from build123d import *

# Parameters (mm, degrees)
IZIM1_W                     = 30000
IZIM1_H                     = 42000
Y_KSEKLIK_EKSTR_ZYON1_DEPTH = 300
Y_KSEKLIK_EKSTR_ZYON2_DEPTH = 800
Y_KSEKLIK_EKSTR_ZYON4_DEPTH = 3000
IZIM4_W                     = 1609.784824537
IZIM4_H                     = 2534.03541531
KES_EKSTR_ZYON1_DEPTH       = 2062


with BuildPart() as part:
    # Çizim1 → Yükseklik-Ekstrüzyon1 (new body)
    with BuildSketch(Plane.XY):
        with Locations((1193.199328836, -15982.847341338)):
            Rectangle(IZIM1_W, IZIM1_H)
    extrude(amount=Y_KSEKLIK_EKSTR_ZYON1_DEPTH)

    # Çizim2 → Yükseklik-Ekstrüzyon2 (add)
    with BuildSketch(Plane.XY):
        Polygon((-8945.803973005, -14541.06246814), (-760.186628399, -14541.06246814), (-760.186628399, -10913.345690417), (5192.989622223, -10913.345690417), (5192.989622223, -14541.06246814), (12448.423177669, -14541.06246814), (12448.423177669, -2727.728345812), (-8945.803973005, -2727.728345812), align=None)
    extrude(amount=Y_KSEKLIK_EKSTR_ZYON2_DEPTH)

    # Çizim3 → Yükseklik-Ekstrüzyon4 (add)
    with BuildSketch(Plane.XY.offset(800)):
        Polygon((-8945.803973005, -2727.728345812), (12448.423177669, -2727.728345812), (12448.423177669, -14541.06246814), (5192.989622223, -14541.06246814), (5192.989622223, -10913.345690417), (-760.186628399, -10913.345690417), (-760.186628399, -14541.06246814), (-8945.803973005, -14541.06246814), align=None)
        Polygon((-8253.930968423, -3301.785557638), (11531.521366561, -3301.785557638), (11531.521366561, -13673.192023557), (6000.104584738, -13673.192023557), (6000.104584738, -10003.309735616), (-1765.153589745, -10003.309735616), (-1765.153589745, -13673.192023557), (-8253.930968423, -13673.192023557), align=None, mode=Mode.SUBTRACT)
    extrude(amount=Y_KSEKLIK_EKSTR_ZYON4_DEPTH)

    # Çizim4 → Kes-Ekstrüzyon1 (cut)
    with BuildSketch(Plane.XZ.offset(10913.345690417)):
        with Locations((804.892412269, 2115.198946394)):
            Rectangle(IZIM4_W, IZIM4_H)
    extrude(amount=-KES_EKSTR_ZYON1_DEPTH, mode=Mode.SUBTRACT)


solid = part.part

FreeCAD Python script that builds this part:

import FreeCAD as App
import Part
import Sketcher
Q = App.Units.Quantity

doc = App.newDocument("Part")
body = doc.addObject("PartDesign::Body", "Body")

sketch1 = body.newObject("Sketcher::SketchObject", "Sketch")
sketch1.AttachmentSupport = (doc.getObject("XY_Plane"), [""])
sketch1.MapMode = "FlatFace"
sketch1.addGeometry([
    Part.LineSegment(App.Vector(-13807, 5017, 0), App.Vector(-13807, -36983, 0)),
    Part.LineSegment(App.Vector(-13807, -36983, 0), App.Vector(16193, -36983, 0)),
    Part.LineSegment(App.Vector(16193, -36983, 0), App.Vector(16193, 5017, 0)),
    Part.LineSegment(App.Vector(16193, 5017, 0), App.Vector(-13807, 5017, 0)),
], False)
sketch1.addConstraint([
    Sketcher.Constraint("Coincident", 0, 2, 1, 1),
    Sketcher.Constraint("Coincident", 1, 2, 2, 1),
    Sketcher.Constraint("Coincident", 2, 2, 3, 1),
    Sketcher.Constraint("Coincident", 3, 2, 0, 1),
    Sketcher.Constraint("Vertical", 0),
    Sketcher.Constraint("Horizontal", 1),
    Sketcher.Constraint("Vertical", 2),
    Sketcher.Constraint("Horizontal", 3),
    Sketcher.Constraint("DistanceX", 1, 1, 1, 2, Q("30000 mm")),
    Sketcher.Constraint("DistanceY", 0, 2, 0, 1, Q("42000 mm")),
    Sketcher.Constraint("DistanceX", 0, 2, -1, 1, Q("13806.800671 mm")),
    Sketcher.Constraint("DistanceY", 0, 2, -1, 1, Q("36982.847341 mm")),
])
pad1 = body.newObject("PartDesign::Pad", "Pad")
pad1.Profile = sketch1
pad1.Length = 300

sketch2 = body.newObject("Sketcher::SketchObject", "Sketch001")
sketch2.AttachmentSupport = (doc.getObject("XY_Plane"), [""])
sketch2.MapMode = "FlatFace"
sketch2.addGeometry([
    Part.LineSegment(App.Vector(-8946, -14541, 0), App.Vector(-760, -14541, 0)),
    Part.LineSegment(App.Vector(-760, -14541, 0), App.Vector(-760, -10913, 0)),
    Part.LineSegment(App.Vector(-760, -10913, 0), App.Vector(5193, -10913, 0)),
    Part.LineSegment(App.Vector(5193, -10913, 0), App.Vector(5193, -14541, 0)),
    Part.LineSegment(App.Vector(5193, -14541, 0), App.Vector(12448, -14541, 0)),
    Part.LineSegment(App.Vector(12448, -14541, 0), App.Vector(12448, -2728, 0)),
    Part.LineSegment(App.Vector(12448, -2728, 0), App.Vector(-8946, -2728, 0)),
    Part.LineSegment(App.Vector(-8946, -2728, 0), App.Vector(-8946, -14541, 0)),
], False)
sketch2.addConstraint([
    Sketcher.Constraint("Coincident", 0, 2, 1, 1),
    Sketcher.Constraint("Coincident", 1, 2, 2, 1),
    Sketcher.Constraint("Coincident", 2, 2, 3, 1),
    Sketcher.Constraint("Coincident", 3, 2, 4, 1),
    Sketcher.Constraint("Coincident", 4, 2, 5, 1),
    Sketcher.Constraint("Coincident", 5, 2, 6, 1),
    Sketcher.Constraint("Coincident", 6, 2, 7, 1),
    Sketcher.Constraint("Coincident", 7, 2, 0, 1),
    Sketcher.Constraint("Horizontal", 0),
    Sketcher.Constraint("Vertical", 1),
    Sketcher.Constraint("Horizontal", 2),
    Sketcher.Constraint("Vertical", 3),
    Sketcher.Constraint("Horizontal", 4),
    Sketcher.Constraint("Vertical", 5),
    Sketcher.Constraint("Horizontal", 6),
    Sketcher.Constraint("Vertical", 7),
    Sketcher.Constraint("Horizontal", 0, 2, 3, 2),
    Sketcher.Constraint("DistanceX", 2, 1, 2, 2, Q("5953.176251 mm")),
    Sketcher.Constraint("DistanceX", 6, 2, 6, 1, Q("21394.227151 mm")),
    Sketcher.Constraint("DistanceX", 0, 1, 0, 2, Q("8185.617345 mm")),
    Sketcher.Constraint("DistanceY", 1, 1, 1, 2, Q("3627.716778 mm")),
    Sketcher.Constraint("DistanceY", 5, 1, 5, 2, Q("11813.334122 mm")),
    Sketcher.Constraint("DistanceX", 0, 2, -1, 1, Q("760.186628 mm")),
    Sketcher.Constraint("DistanceY", 0, 2, -1, 1, Q("14541.062468 mm")),
])
pad2 = body.newObject("PartDesign::Pad", "Pad001")
pad2.Profile = sketch2
pad2.Length = 800

sketch3 = body.newObject("Sketcher::SketchObject", "Sketch002")
sketch3.AttachmentSupport = (doc.getObject("XY_Plane"), [""])
sketch3.MapMode = "FlatFace"
sketch3.AttachmentOffset = App.Placement(App.Vector(0, 0, 800), App.Rotation())
sketch3.addGeometry([
    Part.LineSegment(App.Vector(12448, -2728, 0), App.Vector(-8946, -2728, 0)),
    Part.LineSegment(App.Vector(-8946, -2728, 0), App.Vector(-8946, -14541, 0)),
    Part.LineSegment(App.Vector(-8946, -14541, 0), App.Vector(-760, -14541, 0)),
    Part.LineSegment(App.Vector(-760, -14541, 0), App.Vector(-760, -10913, 0)),
    Part.LineSegment(App.Vector(-760, -10913, 0), App.Vector(5193, -10913, 0)),
    Part.LineSegment(App.Vector(5193, -10913, 0), App.Vector(5193, -14541, 0)),
    Part.LineSegment(App.Vector(5193, -14541, 0), App.Vector(12448, -14541, 0)),
    Part.LineSegment(App.Vector(12448, -14541, 0), App.Vector(12448, -2728, 0)),
    Part.LineSegment(App.Vector(-8254, -3302, 0), App.Vector(11532, -3302, 0)),
    Part.LineSegment(App.Vector(11532, -3302, 0), App.Vector(11532, -13673, 0)),
    Part.LineSegment(App.Vector(11532, -13673, 0), App.Vector(6000, -13673, 0)),
    Part.LineSegment(App.Vector(6000, -13673, 0), App.Vector(6000, -10003, 0)),
    Part.LineSegment(App.Vector(6000, -10003, 0), App.Vector(-1765, -10003, 0)),
    Part.LineSegment(App.Vector(-1765, -10003, 0), App.Vector(-1765, -13673, 0)),
    Part.LineSegment(App.Vector(-1765, -13673, 0), App.Vector(-8254, -13673, 0)),
    Part.LineSegment(App.Vector(-8254, -13673, 0), App.Vector(-8254, -3302, 0)),
], False)
sketch3.addConstraint([
    Sketcher.Constraint("Coincident", 0, 2, 1, 1),
    Sketcher.Constraint("Coincident", 1, 2, 2, 1),
    Sketcher.Constraint("Coincident", 2, 2, 3, 1),
    Sketcher.Constraint("Coincident", 3, 2, 4, 1),
    Sketcher.Constraint("Coincident", 4, 2, 5, 1),
    Sketcher.Constraint("Coincident", 5, 2, 6, 1),
    Sketcher.Constraint("Coincident", 6, 2, 7, 1),
    Sketcher.Constraint("Coincident", 7, 2, 0, 1),
    Sketcher.Constraint("Coincident", 8, 2, 9, 1),
    Sketcher.Constraint("Coincident", 9, 2, 10, 1),
    Sketcher.Constraint("Coincident", 10, 2, 11, 1),
    Sketcher.Constraint("Coincident", 11, 2, 12, 1),
    Sketcher.Constraint("Coincident", 12, 2, 13, 1),
    Sketcher.Constraint("Coincident", 13, 2, 14, 1),
    Sketcher.Constraint("Coincident", 14, 2, 15, 1),
    Sketcher.Constraint("Coincident", 15, 2, 8, 1),
    Sketcher.Constraint("Horizontal", 0),
    Sketcher.Constraint("Vertical", 1),
    Sketcher.Constraint("Horizontal", 2),
    Sketcher.Constraint("Vertical", 3),
    Sketcher.Constraint("Horizontal", 4),
    Sketcher.Constraint("Vertical", 5),
    Sketcher.Constraint("Horizontal", 6),
    Sketcher.Constraint("Vertical", 7),
    Sketcher.Constraint("Horizontal", 8),
    Sketcher.Constraint("Vertical", 9),
    Sketcher.Constraint("Horizontal", 10),
    Sketcher.Constraint("Vertical", 11),
    Sketcher.Constraint("Horizontal", 12),
    Sketcher.Constraint("Vertical", 13),
    Sketcher.Constraint("Horizontal", 14),
    Sketcher.Constraint("Vertical", 15),
    Sketcher.Constraint("Horizontal", 2, 2, 5, 2),
    Sketcher.Constraint("Horizontal", 10, 2, 13, 2),
    Sketcher.Constraint("DistanceX", 0, 2, 0, 1, Q("21394.227151 mm")),
    Sketcher.Constraint("DistanceX", 4, 1, 4, 2, Q("5953.176251 mm")),
    Sketcher.Constraint("DistanceX", 10, 2, 10, 1, Q("5531.416782 mm")),
    Sketcher.Constraint("DistanceX", 14, 2, 14, 1, Q("6488.777379 mm")),
    Sketcher.Constraint("DistanceX", 2, 1, 2, 2, Q("8185.617345 mm")),
    Sketcher.Constraint("DistanceX", 8, 1, 8, 2, Q("19785.452335 mm")),
    Sketcher.Constraint("DistanceY", 1, 2, 1, 1, Q("11813.334122 mm")),
    Sketcher.Constraint("DistanceY", 3, 1, 3, 2, Q("3627.716778 mm")),
    Sketcher.Constraint("DistanceY", 9, 2, 9, 1, Q("10371.406466 mm")),
    Sketcher.Constraint("DistanceY", 11, 1, 11, 2, Q("3669.882288 mm")),
    Sketcher.Constraint("DistanceY", 1, 2, -1, 1, Q("14541.062468 mm")),
    Sketcher.Constraint("DistanceX", 2, 2, -1, 1, Q("760.186628 mm")),
    Sketcher.Constraint("DistanceX", 12, 2, -1, 1, Q("1765.15359 mm")),
    Sketcher.Constraint("DistanceY", 8, 2, 7, 2, Q("574.057212 mm")),
])
pad3 = body.newObject("PartDesign::Pad", "Pad002")
pad3.Profile = sketch3
pad3.Length = 3000

sketch4 = body.newObject("Sketcher::SketchObject", "Sketch003")
sketch4.AttachmentSupport = (doc.getObject("XZ_Plane"), [""])
sketch4.MapMode = "FlatFace"
sketch4.AttachmentOffset = App.Placement(App.Vector(0, 0, 10913.34569), App.Rotation())
sketch4.addGeometry([
    Part.LineSegment(App.Vector(0, 3382, 0), App.Vector(0, 848, 0)),
    Part.LineSegment(App.Vector(0, 848, 0), App.Vector(1610, 848, 0)),
    Part.LineSegment(App.Vector(1610, 848, 0), App.Vector(1610, 3382, 0)),
    Part.LineSegment(App.Vector(1610, 3382, 0), App.Vector(0, 3382, 0)),
], False)
sketch4.addConstraint([
    Sketcher.Constraint("Coincident", 0, 2, 1, 1),
    Sketcher.Constraint("Coincident", 1, 2, 2, 1),
    Sketcher.Constraint("Coincident", 2, 2, 3, 1),
    Sketcher.Constraint("Coincident", 3, 2, 0, 1),
    Sketcher.Constraint("Vertical", 0),
    Sketcher.Constraint("Horizontal", 1),
    Sketcher.Constraint("Vertical", 2),
    Sketcher.Constraint("Horizontal", 3),
    Sketcher.Constraint("PointOnObject", 0, 2, -2),
    Sketcher.Constraint("DistanceX", 1, 1, 1, 2, Q("1609.784825 mm")),
    Sketcher.Constraint("DistanceY", 0, 2, 0, 1, Q("2534.035415 mm")),
    Sketcher.Constraint("DistanceY", -1, 1, 0, 2, Q("848.181239 mm")),
])
pocket1 = body.newObject("PartDesign::Pocket", "Pocket")
pocket1.Profile = sketch4
pocket1.Length = 2062

doc.recompute()
